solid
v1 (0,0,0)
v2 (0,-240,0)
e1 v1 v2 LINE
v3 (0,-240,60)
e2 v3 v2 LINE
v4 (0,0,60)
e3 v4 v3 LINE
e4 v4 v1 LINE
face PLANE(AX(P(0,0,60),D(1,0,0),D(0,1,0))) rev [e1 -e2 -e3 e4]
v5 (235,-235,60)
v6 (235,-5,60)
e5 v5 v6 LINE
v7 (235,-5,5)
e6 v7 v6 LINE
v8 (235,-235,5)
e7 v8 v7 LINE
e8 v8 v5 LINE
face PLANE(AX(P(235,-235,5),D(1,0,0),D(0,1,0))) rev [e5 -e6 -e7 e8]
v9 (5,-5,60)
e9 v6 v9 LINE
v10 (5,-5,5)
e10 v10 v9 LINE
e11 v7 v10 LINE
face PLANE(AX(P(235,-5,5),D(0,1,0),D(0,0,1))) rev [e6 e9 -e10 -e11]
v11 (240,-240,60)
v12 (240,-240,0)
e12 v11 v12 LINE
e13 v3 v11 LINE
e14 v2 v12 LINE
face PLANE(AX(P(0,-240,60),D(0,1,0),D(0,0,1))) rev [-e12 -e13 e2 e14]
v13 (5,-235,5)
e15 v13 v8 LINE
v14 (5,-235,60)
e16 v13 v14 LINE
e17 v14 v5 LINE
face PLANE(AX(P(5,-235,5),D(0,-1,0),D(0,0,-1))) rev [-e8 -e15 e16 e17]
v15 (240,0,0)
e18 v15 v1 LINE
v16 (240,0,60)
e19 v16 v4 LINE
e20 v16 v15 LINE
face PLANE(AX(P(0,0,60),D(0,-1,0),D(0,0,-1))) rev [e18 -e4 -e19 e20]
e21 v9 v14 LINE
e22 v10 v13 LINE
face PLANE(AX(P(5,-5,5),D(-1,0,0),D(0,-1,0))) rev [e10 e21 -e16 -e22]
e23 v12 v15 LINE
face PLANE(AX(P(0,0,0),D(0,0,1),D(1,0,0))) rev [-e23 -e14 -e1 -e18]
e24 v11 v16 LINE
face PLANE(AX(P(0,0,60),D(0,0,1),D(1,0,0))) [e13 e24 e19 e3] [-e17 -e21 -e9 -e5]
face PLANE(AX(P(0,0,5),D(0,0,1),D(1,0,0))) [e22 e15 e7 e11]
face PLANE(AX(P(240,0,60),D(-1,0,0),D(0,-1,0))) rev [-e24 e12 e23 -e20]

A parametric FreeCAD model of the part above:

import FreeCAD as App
import Part
import Sketcher


def add_polygon(sketch, points):
    """Adds a closed chain of lines whose ends are joined by coincident constraints."""
    first, n = sketch.GeometryCount, len(points)
    for a, b in zip(points, points[1:] + points[:1]):
        sketch.addGeometry(Part.LineSegment(App.Vector(*a, 0), App.Vector(*b, 0)), False)
    for i in range(n):
        sketch.addConstraint(Sketcher.Constraint("Coincident", first + i, 2, first + (i + 1) % n, 1))

doc = App.newDocument("Part")
body = doc.addObject("PartDesign::Body", "Body")

sketch1 = doc.addObject("Sketcher::SketchObject", "Sketch")
body.addObject(sketch1)
sketch1.AttachmentSupport = (doc.XY_Plane, [""])
sketch1.MapMode = "FlatFace"
add_polygon(sketch1, [(0, 0), (0, -240), (240, -240), (240, 0)])
sketch1.addConstraint([
    Sketcher.Constraint("Vertical", 0),
    Sketcher.Constraint("Horizontal", 1),
    Sketcher.Constraint("Vertical", 2),
    Sketcher.Constraint("Horizontal", 3),
    Sketcher.Constraint("Coincident", 3, 2, -1, 1),
    Sketcher.Constraint("Equal", 3, 0),
    Sketcher.Constraint("DistanceX", 1, 1, 1, 2, 240.0),
])
pad1 = doc.addObject("PartDesign::Pad", "Pad")
body.addObject(pad1)
pad1.Profile = sketch1
pad1.Length = 60

sketch2 = doc.addObject("Sketcher::SketchObject", "Sketch001")
body.addObject(sketch2)
sketch2.AttachmentSupport = (doc.XY_Plane, [""])
sketch2.MapMode = "FlatFace"
sketch2.AttachmentOffset = App.Placement(App.Vector(0, 0, 60), App.Rotation())
add_polygon(sketch2, [(5, -5), (5, -235), (235, -235), (235, -5)])
sketch2.addConstraint([
    Sketcher.Constraint("Vertical", 0),
    Sketcher.Constraint("Horizontal", 1),
    Sketcher.Constraint("Vertical", 2),
    Sketcher.Constraint("Horizontal", 3),
    Sketcher.Constraint("Equal", 3, 0),
    Sketcher.Constraint("DistanceX", 1, 1, 1, 2, 230.0),
    Sketcher.Constraint("DistanceX", -1, 1, 0, 2, 5.0),
    Sketcher.Constraint("DistanceY", 0, 2, -1, 1, 235.0),
])
pocket1 = doc.addObject("PartDesign::Pocket", "Pocket")
body.addObject(pocket1)
pocket1.Profile = sketch2
pocket1.Length = 55

doc.recompute()
